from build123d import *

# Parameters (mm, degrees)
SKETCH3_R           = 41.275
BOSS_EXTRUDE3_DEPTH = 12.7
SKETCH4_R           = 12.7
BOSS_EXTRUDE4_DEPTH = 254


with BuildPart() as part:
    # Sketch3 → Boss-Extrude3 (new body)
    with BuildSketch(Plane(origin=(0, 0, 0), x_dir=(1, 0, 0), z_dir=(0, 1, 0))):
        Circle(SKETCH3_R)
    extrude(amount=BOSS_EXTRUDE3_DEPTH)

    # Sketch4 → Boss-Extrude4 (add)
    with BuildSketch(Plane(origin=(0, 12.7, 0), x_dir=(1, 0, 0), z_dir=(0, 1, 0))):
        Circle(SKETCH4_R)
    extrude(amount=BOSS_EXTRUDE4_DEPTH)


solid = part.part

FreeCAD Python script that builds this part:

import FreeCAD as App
import Part
import Sketcher
Q = App.Units.Quantity

doc = App.newDocument("Part")
params = doc.addObject("Spreadsheet::Sheet", "Params")
for row, (alias, value) in enumerate([
    ("sketch1_diameter", "3.25 in"),
    ("pad1_length", "0.5 in"),
    ("sketch2_diameter", "1 in"),
    ("pad2_length", "10 in"),
], start=1):
    params.set(f"A{row}", alias)
    params.set(f"B{row}", "=" + value)
    params.setAlias(f"B{row}", alias)

body = doc.addObject("PartDesign::Body", "Body")

# Sketch on XZ plane
sketch1 = doc.addObject("Sketcher::SketchObject", "Sketch")
body.addObject(sketch1)
sketch1.AttachmentSupport = (doc.XZ_Plane, [""])
sketch1.MapMode = "FlatFace"
sketch1.addGeometry(Part.Circle(App.Vector(0, 0, 0), App.Vector(0, 0, 1), 41), False)
sketch1.addConstraint([
    Sketcher.Constraint("Coincident", 0, 3, -1, 1),
    Sketcher.Constraint("Diameter", 0, Q("3.25 in")),
])
sketch1.setExpression("Constraints[1]", "Params.sketch1_diameter")
pad1 = doc.addObject("PartDesign::Pad", "Pad")
body.addObject(pad1)
pad1.Profile = sketch1
pad1.setExpression("Length", "Params.pad1_length")
pad1.Reversed = True

# Sketch on XZ plane
sketch2 = doc.addObject("Sketcher::SketchObject", "Sketch001")
body.addObject(sketch2)
sketch2.AttachmentSupport = (doc.XZ_Plane, [""])
sketch2.MapMode = "FlatFace"
sketch2.AttachmentOffset = App.Placement(App.Vector(0, 0, -0.5 * 25.4), App.Rotation())
sketch2.addGeometry(Part.Circle(App.Vector(0, 0, 0), App.Vector(0, 0, 1), 13), False)
sketch2.addConstraint([
    Sketcher.Constraint("Coincident", 0, 3, -1, 1),
    Sketcher.Constraint("Diameter", 0, Q("1 in")),
])
sketch2.setExpression("Constraints[1]", "Params.sketch2_diameter")
pad2 = doc.addObject("PartDesign::Pad", "Pad001")
body.addObject(pad2)
pad2.Profile = sketch2
pad2.setExpression("Length", "Params.pad2_length")
pad2.Reversed = True

doc.recompute()
